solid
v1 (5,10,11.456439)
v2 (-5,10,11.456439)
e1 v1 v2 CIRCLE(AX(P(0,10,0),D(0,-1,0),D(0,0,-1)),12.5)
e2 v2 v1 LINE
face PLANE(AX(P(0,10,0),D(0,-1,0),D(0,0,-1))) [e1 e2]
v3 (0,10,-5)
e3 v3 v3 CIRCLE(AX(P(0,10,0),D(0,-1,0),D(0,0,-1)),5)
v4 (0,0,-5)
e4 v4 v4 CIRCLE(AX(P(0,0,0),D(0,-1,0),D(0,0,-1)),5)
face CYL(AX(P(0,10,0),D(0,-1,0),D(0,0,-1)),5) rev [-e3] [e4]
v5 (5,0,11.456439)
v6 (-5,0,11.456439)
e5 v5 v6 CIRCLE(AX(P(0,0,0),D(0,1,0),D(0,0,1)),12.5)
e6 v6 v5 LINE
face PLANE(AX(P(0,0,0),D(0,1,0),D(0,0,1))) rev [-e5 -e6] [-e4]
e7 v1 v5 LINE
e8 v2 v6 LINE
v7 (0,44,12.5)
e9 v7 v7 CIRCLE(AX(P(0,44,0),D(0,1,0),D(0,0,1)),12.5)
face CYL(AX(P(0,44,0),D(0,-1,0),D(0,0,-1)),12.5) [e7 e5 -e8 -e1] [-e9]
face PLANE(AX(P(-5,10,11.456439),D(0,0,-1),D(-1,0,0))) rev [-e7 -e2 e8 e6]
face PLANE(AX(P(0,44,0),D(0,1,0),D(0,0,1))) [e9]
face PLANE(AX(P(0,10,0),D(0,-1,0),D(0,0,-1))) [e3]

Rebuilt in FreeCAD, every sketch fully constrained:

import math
import FreeCAD as App
import Part
import Sketcher

doc = App.newDocument("Part")
body = doc.addObject("PartDesign::Body", "Body")

# Sketch on XZ plane
sketch1 = doc.addObject("Sketcher::SketchObject", "Sketch")
body.addObject(sketch1)
sketch1.AttachmentSupport = (doc.XZ_Plane, [""])
sketch1.MapMode = "FlatFace"
sketch1.addGeometry(Part.Circle(App.Vector(0, 0, 0), App.Vector(0, 0, 1), 12.5), False)
sketch1.addConstraint(Sketcher.Constraint("Coincident", 0, 3, -1, 1))
sketch1.addConstraint(Sketcher.Constraint("Diameter", 0, 25.0))
pad1 = doc.addObject("PartDesign::Pad", "Pad")
body.addObject(pad1)
pad1.Profile = sketch1
pad1.Length = 44
pad1.Reversed = True

# Sketch on XZ plane
sketch2 = doc.addObject("Sketcher::SketchObject", "Sketch001")
body.addObject(sketch2)
sketch2.AttachmentSupport = (doc.XZ_Plane, [""])
sketch2.MapMode = "FlatFace"
sketch2.addGeometry(Part.Circle(App.Vector(0, 0, 0), App.Vector(0, 0, 1), 5), False)
sketch2.addGeometry(Part.LineSegment(App.Vector(-5, 11.456439, 0), App.Vector(5, 11.456439, 0)), False)
sketch2.addGeometry(Part.ArcOfCircle(Part.Circle(App.Vector(0, 0, 0), App.Vector(0, 0, 1), 12.5), math.radians(66.421822), math.radians(113.578178)), False)
sketch2.addConstraint(Sketcher.Constraint("Coincident", 1, 1, 2, 2))
sketch2.addConstraint(Sketcher.Constraint("Coincident", 2, 1, 1, 2))
sketch2.addConstraint(Sketcher.Constraint("Horizontal", 1))
sketch2.addConstraint(Sketcher.Constraint("Coincident", 0, 3, -1, 1))
sketch2.addConstraint(Sketcher.Constraint("Coincident", 2, 3, -1, 1))
sketch2.addConstraint(Sketcher.Constraint("Diameter", 0, 10.0))
sketch2.addConstraint(Sketcher.Constraint("Radius", 2, 12.5))
sketch2.addConstraint(Sketcher.Constraint("DistanceX", 1, 1, 1, 2, 10.0))
pocket1 = doc.addObject("PartDesign::Pocket", "Pocket")
body.addObject(pocket1)
pocket1.Profile = sketch2
pocket1.Length = 10

doc.recompute()
